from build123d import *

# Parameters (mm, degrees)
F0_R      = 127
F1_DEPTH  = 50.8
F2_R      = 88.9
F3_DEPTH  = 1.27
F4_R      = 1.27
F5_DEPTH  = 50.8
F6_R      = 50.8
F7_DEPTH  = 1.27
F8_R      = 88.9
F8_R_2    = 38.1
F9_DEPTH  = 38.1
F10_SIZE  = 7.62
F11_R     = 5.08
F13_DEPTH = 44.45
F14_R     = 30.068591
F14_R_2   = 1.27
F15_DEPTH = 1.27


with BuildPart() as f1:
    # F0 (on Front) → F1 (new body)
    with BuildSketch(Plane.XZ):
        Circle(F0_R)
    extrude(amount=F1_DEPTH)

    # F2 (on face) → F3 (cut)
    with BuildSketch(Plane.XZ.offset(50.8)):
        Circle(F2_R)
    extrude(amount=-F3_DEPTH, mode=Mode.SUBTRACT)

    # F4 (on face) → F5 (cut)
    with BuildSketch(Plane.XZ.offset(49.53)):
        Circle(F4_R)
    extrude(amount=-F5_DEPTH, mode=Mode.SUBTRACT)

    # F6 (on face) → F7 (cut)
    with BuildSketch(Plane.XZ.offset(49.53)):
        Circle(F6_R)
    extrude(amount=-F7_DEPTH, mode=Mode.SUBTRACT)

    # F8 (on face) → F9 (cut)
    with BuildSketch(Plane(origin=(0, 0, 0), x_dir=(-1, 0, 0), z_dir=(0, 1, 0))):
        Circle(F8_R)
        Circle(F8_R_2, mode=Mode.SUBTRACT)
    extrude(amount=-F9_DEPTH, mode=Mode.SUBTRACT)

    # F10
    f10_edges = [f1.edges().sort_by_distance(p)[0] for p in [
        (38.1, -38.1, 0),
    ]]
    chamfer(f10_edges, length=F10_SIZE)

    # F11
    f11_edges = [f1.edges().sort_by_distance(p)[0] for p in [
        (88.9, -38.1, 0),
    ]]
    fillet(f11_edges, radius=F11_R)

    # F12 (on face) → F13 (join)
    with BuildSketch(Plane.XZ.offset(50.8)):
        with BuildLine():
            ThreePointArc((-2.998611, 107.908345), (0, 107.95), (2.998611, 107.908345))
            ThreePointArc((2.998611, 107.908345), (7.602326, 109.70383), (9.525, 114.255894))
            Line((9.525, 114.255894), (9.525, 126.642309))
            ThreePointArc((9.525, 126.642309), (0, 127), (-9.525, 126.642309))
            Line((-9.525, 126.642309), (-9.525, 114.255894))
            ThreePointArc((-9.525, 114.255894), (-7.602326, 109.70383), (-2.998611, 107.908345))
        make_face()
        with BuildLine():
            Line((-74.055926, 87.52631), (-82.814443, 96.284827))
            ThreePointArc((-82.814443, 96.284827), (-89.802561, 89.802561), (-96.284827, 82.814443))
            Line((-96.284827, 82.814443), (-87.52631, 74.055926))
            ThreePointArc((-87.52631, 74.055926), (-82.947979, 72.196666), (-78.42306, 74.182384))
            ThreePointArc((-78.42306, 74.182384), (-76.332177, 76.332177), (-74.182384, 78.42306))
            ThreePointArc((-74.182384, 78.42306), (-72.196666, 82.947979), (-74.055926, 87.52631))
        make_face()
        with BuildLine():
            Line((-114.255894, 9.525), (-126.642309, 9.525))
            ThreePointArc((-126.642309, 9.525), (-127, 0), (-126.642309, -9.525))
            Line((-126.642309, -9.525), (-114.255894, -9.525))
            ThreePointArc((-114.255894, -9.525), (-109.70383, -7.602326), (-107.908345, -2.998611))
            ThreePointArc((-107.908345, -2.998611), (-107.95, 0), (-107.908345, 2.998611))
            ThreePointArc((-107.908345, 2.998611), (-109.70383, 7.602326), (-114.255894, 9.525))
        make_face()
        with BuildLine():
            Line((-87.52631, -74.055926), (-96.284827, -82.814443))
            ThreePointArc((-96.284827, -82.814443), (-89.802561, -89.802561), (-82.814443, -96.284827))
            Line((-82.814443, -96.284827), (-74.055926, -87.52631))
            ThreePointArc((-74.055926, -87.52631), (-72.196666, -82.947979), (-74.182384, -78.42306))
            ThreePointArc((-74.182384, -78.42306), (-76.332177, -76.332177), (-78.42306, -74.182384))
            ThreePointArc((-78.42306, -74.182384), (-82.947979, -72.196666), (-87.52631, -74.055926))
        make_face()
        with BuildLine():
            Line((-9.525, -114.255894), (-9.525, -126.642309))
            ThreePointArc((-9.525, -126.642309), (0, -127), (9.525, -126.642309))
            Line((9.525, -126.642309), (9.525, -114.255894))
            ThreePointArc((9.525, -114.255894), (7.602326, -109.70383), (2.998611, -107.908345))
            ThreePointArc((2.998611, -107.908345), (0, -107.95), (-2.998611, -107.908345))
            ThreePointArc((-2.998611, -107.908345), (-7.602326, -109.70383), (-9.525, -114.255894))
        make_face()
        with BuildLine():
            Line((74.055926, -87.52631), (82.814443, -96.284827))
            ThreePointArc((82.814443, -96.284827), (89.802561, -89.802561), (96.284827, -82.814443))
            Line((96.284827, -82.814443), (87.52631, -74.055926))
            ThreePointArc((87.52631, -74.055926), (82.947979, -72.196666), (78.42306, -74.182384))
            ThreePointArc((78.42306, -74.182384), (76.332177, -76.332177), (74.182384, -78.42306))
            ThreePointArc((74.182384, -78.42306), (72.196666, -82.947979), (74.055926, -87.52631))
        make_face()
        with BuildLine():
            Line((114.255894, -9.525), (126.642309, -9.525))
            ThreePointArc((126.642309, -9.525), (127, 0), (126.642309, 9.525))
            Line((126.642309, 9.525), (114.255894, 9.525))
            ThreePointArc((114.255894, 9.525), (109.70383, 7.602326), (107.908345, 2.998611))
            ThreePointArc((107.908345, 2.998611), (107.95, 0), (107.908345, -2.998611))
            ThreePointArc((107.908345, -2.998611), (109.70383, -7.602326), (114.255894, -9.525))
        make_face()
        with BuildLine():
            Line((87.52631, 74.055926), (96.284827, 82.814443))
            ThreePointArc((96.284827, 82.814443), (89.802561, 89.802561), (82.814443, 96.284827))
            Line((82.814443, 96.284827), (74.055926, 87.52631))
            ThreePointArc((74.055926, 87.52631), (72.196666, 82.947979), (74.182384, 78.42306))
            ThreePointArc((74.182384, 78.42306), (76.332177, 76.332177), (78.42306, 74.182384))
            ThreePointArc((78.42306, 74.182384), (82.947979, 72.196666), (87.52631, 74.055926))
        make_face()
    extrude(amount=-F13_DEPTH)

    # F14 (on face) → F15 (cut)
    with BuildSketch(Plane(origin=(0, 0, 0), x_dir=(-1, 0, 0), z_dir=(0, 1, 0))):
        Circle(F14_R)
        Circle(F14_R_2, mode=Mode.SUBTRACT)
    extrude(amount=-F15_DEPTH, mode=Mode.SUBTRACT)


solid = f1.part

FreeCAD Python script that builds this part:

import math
import FreeCAD as App
import Part
import Sketcher
Q = App.Units.Quantity


def edges_at(feature, points):
    """Names of the edges that pass closest to the given points."""
    edges = feature.Shape.Edges
    near = lambda p: min(range(len(edges)), key=lambda i: edges[i].distToShape(Part.Vertex(*p))[0])
    return sorted({f"Edge{near(p) + 1}" for p in points})

doc = App.newDocument("Part")
body = doc.addObject("PartDesign::Body", "Body")

# Sketch on XZ plane
sketch1 = body.newObject("Sketcher::SketchObject", "Sketch")
sketch1.AttachmentSupport = (doc.getObject("XZ_Plane"), [""])
sketch1.MapMode = "FlatFace"
sketch1.addGeometry(Part.Circle(App.Vector(0, 0, 0), App.Vector(0, 0, 1), 127), False)
sketch1.addConstraint(Sketcher.Constraint("Coincident", 0, 3, -1, 1))
sketch1.addConstraint(Sketcher.Constraint("Diameter", 0, Q("10 in")))
pad1 = body.newObject("PartDesign::Pad", "Pad")
pad1.Profile = sketch1
pad1.Length = Q("2 in")

# Sketch on XZ plane
sketch2 = body.newObject("Sketcher::SketchObject", "Sketch001")
sketch2.AttachmentSupport = (doc.getObject("XZ_Plane"), [""])
sketch2.MapMode = "FlatFace"
sketch2.AttachmentOffset = App.Placement(App.Vector(0, 0, 2 * 25.4), App.Rotation())
sketch2.addGeometry(Part.Circle(App.Vector(0, 0, 0), App.Vector(0, 0, 1), 89), False)
sketch2.addConstraint(Sketcher.Constraint("Coincident", 0, 3, -1, 1))
sketch2.addConstraint(Sketcher.Constraint("Diameter", 0, Q("7 in")))
pocket1 = body.newObject("PartDesign::Pocket", "Pocket")
pocket1.Profile = sketch2
pocket1.Length = Q("0.05 in")

# Sketch on XZ plane
sketch3 = body.newObject("Sketcher::SketchObject", "Sketch002")
sketch3.AttachmentSupport = (doc.getObject("XZ_Plane"), [""])
sketch3.MapMode = "FlatFace"
sketch3.AttachmentOffset = App.Placement(App.Vector(0, 0, 1.95 * 25.4), App.Rotation())
sketch3.addGeometry(Part.Circle(App.Vector(0, 0, 0), App.Vector(0, 0, 1), 1.3), False)
sketch3.addConstraint(Sketcher.Constraint("Coincident", 0, 3, -1, 1))
sketch3.addConstraint(Sketcher.Constraint("Diameter", 0, Q("0.1 in")))
pocket2 = body.newObject("PartDesign::Pocket", "Pocket001")
pocket2.Profile = sketch3
pocket2.Length = Q("2 in")

# Sketch on XZ plane
sketch4 = body.newObject("Sketcher::SketchObject", "Sketch003")
sketch4.AttachmentSupport = (doc.getObject("XZ_Plane"), [""])
sketch4.MapMode = "FlatFace"
sketch4.AttachmentOffset = App.Placement(App.Vector(0, 0, 1.95 * 25.4), App.Rotation())
sketch4.addGeometry(Part.Circle(App.Vector(0, 0, 0), App.Vector(0, 0, 1), 51), False)
sketch4.addConstraint(Sketcher.Constraint("Coincident", 0, 3, -1, 1))
sketch4.addConstraint(Sketcher.Constraint("Diameter", 0, Q("4 in")))
pocket3 = body.newObject("PartDesign::Pocket", "Pocket002")
pocket3.Profile = sketch4
pocket3.Length = Q("0.05 in")

# Sketch on XZ plane
sketch5 = body.newObject("Sketcher::SketchObject", "Sketch004")
sketch5.AttachmentSupport = (doc.getObject("XZ_Plane"), [""])
sketch5.MapMode = "FlatFace"
sketch5.addGeometry(Part.Circle(App.Vector(0, 0, 0), App.Vector(0, 0, 1), 89), False)
sketch5.addGeometry(Part.Circle(App.Vector(0, 0, 0), App.Vector(0, 0, 1), 38), False)
sketch5.addConstraint(Sketcher.Constraint("Coincident", 0, 3, -1, 1))
sketch5.addConstraint(Sketcher.Constraint("Coincident", 1, 3, -1, 1))
sketch5.addConstraint(Sketcher.Constraint("Diameter", 0, Q("7 in")))
sketch5.addConstraint(Sketcher.Constraint("Diameter", 1, Q("3 in")))
pocket4 = body.newObject("PartDesign::Pocket", "Pocket003")
pocket4.Profile = sketch5
pocket4.Length = Q("1.5 in")
pocket4.Reversed = True
doc.recompute()

chamfer = body.newObject("PartDesign::Chamfer", "Chamfer")
chamfer.Base = (pocket4, edges_at(pocket4, [(38.1, -38.1, 0)]))
chamfer.Size = Q("0.3 in")
doc.recompute()

fillet = body.newObject("PartDesign::Fillet", "Fillet")
fillet.Base = (chamfer, edges_at(chamfer, [(88.9, -38.1, 0)]))
fillet.Radius = Q("0.2 in")

# Sketch on XZ plane
sketch6 = body.newObject("Sketcher::SketchObject", "Sketch005")
sketch6.AttachmentSupport = (doc.getObject("XZ_Plane"), [""])
sketch6.MapMode = "FlatFace"
sketch6.AttachmentOffset = App.Placement(App.Vector(0, 0, 2 * 25.4), App.Rotation())
sketch6.addGeometry(Part.ArcOfCircle(Part.Circle(App.Vector(0, 0, 0), App.Vector(0, 0, 1), 108), math.radians(88.41), math.radians(91.59)), False)
sketch6.addGeometry(Part.ArcOfCircle(Part.Circle(App.Vector(3, 114, 0), App.Vector(0, 0, 1), 6), math.radians(-92), math.radians(0)), False)
sketch6.addGeometry(Part.LineSegment(App.Vector(10, 114, 0), App.Vector(10, 127, 0)), False)
sketch6.addGeometry(Part.ArcOfCircle(Part.Circle(App.Vector(0, 0, 0), App.Vector(0, 0, 1), 127), math.radians(85.7), math.radians(94.3)), False)
sketch6.addGeometry(Part.LineSegment(App.Vector(-10, 127, 0), App.Vector(-10, 114, 0)), False)
sketch6.addGeometry(Part.ArcOfCircle(Part.Circle(App.Vector(-3, 114, 0), App.Vector(0, 0, 1), 6), math.radians(180), math.radians(272)), False)
sketch6.addGeometry(Part.LineSegment(App.Vector(-74, 88, 0), App.Vector(-83, 96, 0)), False)
sketch6.addGeometry(Part.ArcOfCircle(Part.Circle(App.Vector(0, 0, 0), App.Vector(0, 0, 1), 127), math.radians(130.7), math.radians(139.3)), False)
sketch6.addGeometry(Part.LineSegment(App.Vector(-96, 83, 0), App.Vector(-88, 74, 0)), False)
sketch6.addGeometry(Part.ArcOfCircle(Part.Circle(App.Vector(-83, 79, 0), App.Vector(0, 0, 1), 6), math.radians(-135), math.radians(-43)), False)
sketch6.addGeometry(Part.ArcOfCircle(Part.Circle(App.Vector(0, 0, 0), App.Vector(0, 0, 1), 108), math.radians(133.41), math.radians(136.59)), False)
sketch6.addGeometry(Part.ArcOfCircle(Part.Circle(App.Vector(-79, 83, 0), App.Vector(0, 0, 1), 6), math.radians(-47), math.radians(45)), False)
sketch6.addGeometry(Part.LineSegment(App.Vector(-114, 10, 0), App.Vector(-127, 10, 0)), False)
sketch6.addGeometry(Part.ArcOfCircle(Part.Circle(App.Vector(0, 0, 0), App.Vector(0, 0, 1), 127), math.radians(175.7), math.radians(184.3)), False)
sketch6.addGeometry(Part.LineSegment(App.Vector(-127, -10, 0), App.Vector(-114, -10, 0)), False)
sketch6.addGeometry(Part.ArcOfCircle(Part.Circle(App.Vector(-114, -3, 0), App.Vector(0, 0, 1), 6), math.radians(-90), math.radians(2)), False)
sketch6.addGeometry(Part.ArcOfCircle(Part.Circle(App.Vector(0, 0, 0), App.Vector(0, 0, 1), 108), math.radians(178.41), math.radians(181.59)), False)
sketch6.addGeometry(Part.ArcOfCircle(Part.Circle(App.Vector(-114, 3, 0), App.Vector(0, 0, 1), 6), math.radians(-2), math.radians(90)), False)
sketch6.addGeometry(Part.LineSegment(App.Vector(-88, -74, 0), App.Vector(-96, -83, 0)), False)
sketch6.addGeometry(Part.ArcOfCircle(Part.Circle(App.Vector(0, 0, 0), App.Vector(0, 0, 1), 127), math.radians(-139.3), math.radians(-130.7)), False)
sketch6.addGeometry(Part.LineSegment(App.Vector(-83, -96, 0), App.Vector(-74, -88, 0)), False)
sketch6.addGeometry(Part.ArcOfCircle(Part.Circle(App.Vector(-79, -83, 0), App.Vector(0, 0, 1), 6), math.radians(-45), math.radians(47)), False)
sketch6.addGeometry(Part.ArcOfCircle(Part.Circle(App.Vector(0, 0, 0), App.Vector(0, 0, 1), 108), math.radians(-136.59), math.radians(-133.41)), False)
sketch6.addGeometry(Part.ArcOfCircle(Part.Circle(App.Vector(-83, -79, 0), App.Vector(0, 0, 1), 6), math.radians(43), math.radians(135)), False)
sketch6.addGeometry(Part.LineSegment(App.Vector(-10, -114, 0), App.Vector(-10, -127, 0)), False)
sketch6.addGeometry(Part.ArcOfCircle(Part.Circle(App.Vector(0, 0, 0), App.Vector(0, 0, 1), 127), math.radians(-94.3), math.radians(-85.7)), False)
sketch6.addGeometry(Part.LineSegment(App.Vector(10, -127, 0), App.Vector(10, -114, 0)), False)
sketch6.addGeometry(Part.ArcOfCircle(Part.Circle(App.Vector(3, -114, 0), App.Vector(0, 0, 1), 6), math.radians(0), math.radians(92)), False)
sketch6.addGeometry(Part.ArcOfCircle(Part.Circle(App.Vector(0, 0, 0), App.Vector(0, 0, 1), 108), math.radians(-91.59), math.radians(-88.41)), False)
sketch6.addGeometry(Part.ArcOfCircle(Part.Circle(App.Vector(-3, -114, 0), App.Vector(0, 0, 1), 6), math.radians(88), math.radians(180)), False)
sketch6.addGeometry(Part.LineSegment(App.Vector(74, -88, 0), App.Vector(83, -96, 0)), False)
sketch6.addGeometry(Part.ArcOfCircle(Part.Circle(App.Vector(0, 0, 0), App.Vector(0, 0, 1), 127), math.radians(-49.3), math.radians(-40.7)), False)
sketch6.addGeometry(Part.LineSegment(App.Vector(96, -83, 0), App.Vector(88, -74, 0)), False)
sketch6.addGeometry(Part.ArcOfCircle(Part.Circle(App.Vector(83, -79, 0), App.Vector(0, 0, 1), 6), math.radians(45), math.radians(137)), False)
sketch6.addGeometry(Part.ArcOfCircle(Part.Circle(App.Vector(0, 0, 0), App.Vector(0, 0, 1), 108), math.radians(-46.59), math.radians(-43.41)), False)
sketch6.addGeometry(Part.ArcOfCircle(Part.Circle(App.Vector(79, -83, 0), App.Vector(0, 0, 1), 6), math.radians(133), math.radians(225)), False)
sketch6.addGeometry(Part.LineSegment(App.Vector(114, -10, 0), App.Vector(127, -10, 0)), False)
sketch6.addGeometry(Part.ArcOfCircle(Part.Circle(App.Vector(0, 0, 0), App.Vector(0, 0, 1), 127), math.radians(-4.3), math.radians(4.3)), False)
sketch6.addGeometry(Part.LineSegment(App.Vector(127, 10, 0), App.Vector(114, 10, 0)), False)
sketch6.addGeometry(Part.ArcOfCircle(Part.Circle(App.Vector(114, 3, 0), App.Vector(0, 0, 1), 6), math.radians(90), math.radians(182)), False)
sketch6.addGeometry(Part.ArcOfCircle(Part.Circle(App.Vector(0, 0, 0), App.Vector(0, 0, 1), 108), math.radians(-1.59), math.radians(1.59)), False)
sketch6.addGeometry(Part.ArcOfCircle(Part.Circle(App.Vector(114, -3, 0), App.Vector(0, 0, 1), 6), math.radians(178), math.radians(270)), False)
sketch6.addGeometry(Part.LineSegment(App.Vector(88, 74, 0), App.Vector(96, 83, 0)), False)
sketch6.addGeometry(Part.ArcOfCircle(Part.Circle(App.Vector(0, 0, 0), App.Vector(0, 0, 1), 127), math.radians(40.7), math.radians(49.3)), False)
sketch6.addGeometry(Part.LineSegment(App.Vector(83, 96, 0), App.Vector(74, 88, 0)), False)
sketch6.addGeometry(Part.ArcOfCircle(Part.Circle(App.Vector(79, 83, 0), App.Vector(0, 0, 1), 6), math.radians(135), math.radians(227)), False)
sketch6.addGeometry(Part.ArcOfCircle(Part.Circle(App.Vector(0, 0, 0), App.Vector(0, 0, 1), 108), math.radians(43.41), math.radians(46.59)), False)
sketch6.addGeometry(Part.ArcOfCircle(Part.Circle(App.Vector(83, 79, 0), App.Vector(0, 0, 1), 6), math.radians(-137), math.radians(-45)), False)
sketch6.addConstraint(Sketcher.Constraint("Tangent", 0, 1, 1, 1))
sketch6.addConstraint(Sketcher.Constraint("Tangent", 1, 2, 2, 1))
sketch6.addConstraint(Sketcher.Constraint("Coincident", 2, 2, 3, 1))
sketch6.addConstraint(Sketcher.Constraint("Coincident", 3, 2, 4, 1))
sketch6.addConstraint(Sketcher.Constraint("Tangent", 4, 2, 5, 1))
sketch6.addConstraint(Sketcher.Constraint("Tangent", 5, 2, 0, 2))
sketch6.addConstraint(Sketcher.Constraint("Coincident", 6, 2, 7, 1))
sketch6.addConstraint(Sketcher.Constraint("Coincident", 7, 2, 8, 1))
sketch6.addConstraint(Sketcher.Constraint("Tangent", 8, 2, 9, 1))
sketch6.addConstraint(Sketcher.Constraint("Tangent", 9, 2, 10, 2))
sketch6.addConstraint(Sketcher.Constraint("Tangent", 10, 1, 11, 1))
sketch6.addConstraint(Sketcher.Constraint("Tangent", 11, 2, 6, 1))
sketch6.addConstraint(Sketcher.Constraint("Coincident", 12, 2, 13, 1))
sketch6.addConstraint(Sketcher.Constraint("Coincident", 13, 2, 14, 1))
sketch6.addConstraint(Sketcher.Constraint("Tangent", 14, 2, 15, 1))
sketch6.addConstraint(Sketcher.Constraint("Tangent", 15, 2, 16, 2))
sketch6.addConstraint(Sketcher.Constraint("Tangent", 16, 1, 17, 1))
sketch6.addConstraint(Sketcher.Constraint("Tangent", 17, 2, 12, 1))
sketch6.addConstraint(Sketcher.Constraint("Coincident", 18, 2, 19, 1))
sketch6.addConstraint(Sketcher.Constraint("Coincident", 19, 2, 20, 1))
sketch6.addConstraint(Sketcher.Constraint("Tangent", 20, 2, 21, 1))
sketch6.addConstraint(Sketcher.Constraint("Tangent", 21, 2, 22, 2))
sketch6.addConstraint(Sketcher.Constraint("Tangent", 22, 1, 23, 1))
sketch6.addConstraint(Sketcher.Constraint("Tangent", 23, 2, 18, 1))
sketch6.addConstraint(Sketcher.Constraint("Coincident", 24, 2, 25, 1))
sketch6.addConstraint(Sketcher.Constraint("Coincident", 25, 2, 26, 1))
sketch6.addConstraint(Sketcher.Constraint("Tangent", 26, 2, 27, 1))
sketch6.addConstraint(Sketcher.Constraint("Tangent", 27, 2, 28, 2))
sketch6.addConstraint(Sketcher.Constraint("Tangent", 28, 1, 29, 1))
sketch6.addConstraint(Sketcher.Constraint("Tangent", 29, 2, 24, 1))
sketch6.addConstraint(Sketcher.Constraint("Coincident", 30, 2, 31, 1))
sketch6.addConstraint(Sketcher.Constraint("Coincident", 31, 2, 32, 1))
sketch6.addConstraint(Sketcher.Constraint("Tangent", 32, 2, 33, 1))
sketch6.addConstraint(Sketcher.Constraint("Tangent", 33, 2, 34, 2))
sketch6.addConstraint(Sketcher.Constraint("Tangent", 34, 1, 35, 1))
sketch6.addConstraint(Sketcher.Constraint("Tangent", 35, 2, 30, 1))
sketch6.addConstraint(Sketcher.Constraint("Coincident", 36, 2, 37, 1))
sketch6.addConstraint(Sketcher.Constraint("Coincident", 37, 2, 38, 1))
sketch6.addConstraint(Sketcher.Constraint("Tangent", 38, 2, 39, 1))
sketch6.addConstraint(Sketcher.Constraint("Tangent", 39, 2, 40, 2))
sketch6.addConstraint(Sketcher.Constraint("Tangent", 40, 1, 41, 1))
sketch6.addConstraint(Sketcher.Constraint("Tangent", 41, 2, 36, 1))
sketch6.addConstraint(Sketcher.Constraint("Coincident", 42, 2, 43, 1))
sketch6.addConstraint(Sketcher.Constraint("Coincident", 43, 2, 44, 1))
sketch6.addConstraint(Sketcher.Constraint("Tangent", 44, 2, 45, 1))
sketch6.addConstraint(Sketcher.Constraint("Tangent", 45, 2, 46, 2))
sketch6.addConstraint(Sketcher.Constraint("Tangent", 46, 1, 47, 1))
sketch6.addConstraint(Sketcher.Constraint("Tangent", 47, 2, 42, 1))
sketch6.addConstraint(Sketcher.Constraint("Vertical", 2))
sketch6.addConstraint(Sketcher.Constraint("Vertical", 4))
sketch6.addConstraint(Sketcher.Constraint("Horizontal", 12))
sketch6.addConstraint(Sketcher.Constraint("Horizontal", 14))
sketch6.addConstraint(Sketcher.Constraint("Vertical", 24))
sketch6.addConstraint(Sketcher.Constraint("Vertical", 26))
sketch6.addConstraint(Sketcher.Constraint("Horizontal", 36))
sketch6.addConstraint(Sketcher.Constraint("Horizontal", 38))
sketch6.addConstraint(Sketcher.Constraint("Equal", 1, 5))
sketch6.addConstraint(Sketcher.Constraint("Equal", 5, 9))
sketch6.addConstraint(Sketcher.Constraint("Equal", 9, 11))
sketch6.addConstraint(Sketcher.Constraint("Equal", 3, 13))
sketch6.addConstraint(Sketcher.Constraint("Equal", 11, 15))
sketch6.addConstraint(Sketcher.Constraint("Equal", 0, 16))
sketch6.addConstraint(Sketcher.Constraint("Equal", 15, 17))
sketch6.addConstraint(Sketcher.Constraint("Equal", 7, 19))
sketch6.addConstraint(Sketcher.Constraint("Equal", 17, 21))
sketch6.addConstraint(Sketcher.Constraint("Equal", 10, 22))
sketch6.addConstraint(Sketcher.Constraint("Equal", 21, 23))
sketch6.addConstraint(Sketcher.Constraint("Equal", 13, 25))
sketch6.addConstraint(Sketcher.Constraint("Equal", 23, 27))
sketch6.addConstraint(Sketcher.Constraint("Equal", 16, 28))
sketch6.addConstraint(Sketcher.Constraint("Equal", 27, 29))
sketch6.addConstraint(Sketcher.Constraint("Equal", 19, 31))
sketch6.addConstraint(Sketcher.Constraint("Equal", 29, 33))
sketch6.addConstraint(Sketcher.Constraint("Equal", 22, 34))
sketch6.addConstraint(Sketcher.Constraint("Equal", 33, 35))
sketch6.addConstraint(Sketcher.Constraint("Equal", 25, 37))
sketch6.addConstraint(Sketcher.Constraint("Equal", 35, 39))
sketch6.addConstraint(Sketcher.Constraint("Equal", 28, 40))
sketch6.addConstraint(Sketcher.Constraint("Equal", 39, 41))
sketch6.addConstraint(Sketcher.Constraint("Equal", 31, 43))
sketch6.addConstraint(Sketcher.Constraint("Equal", 41, 45))
sketch6.addConstraint(Sketcher.Constraint("Equal", 34, 46))
sketch6.addConstraint(Sketcher.Constraint("Equal", 45, 47))
sketch6.addConstraint(Sketcher.Constraint("Symmetric", 3, 3, 25, 3, -1, 1))
sketch6.addConstraint(Sketcher.Constraint("Symmetric", 5, 3, 27, 3, -1, 1))
sketch6.addConstraint(Sketcher.Constraint("Symmetric", 1, 3, 29, 3, -1, 1))
sketch6.addConstraint(Sketcher.Constraint("Symmetric", 7, 3, 31, 3, -1, 1))
sketch6.addConstraint(Sketcher.Constraint("Symmetric", 9, 3, 33, 3, -1, 1))
sketch6.addConstraint(Sketcher.Constraint("Symmetric", 11, 3, 35, 3, -1, 1))
sketch6.addConstraint(Sketcher.Constraint("Symmetric", 13, 3, 37, 3, -1, 1))
sketch6.addConstraint(Sketcher.Constraint("Symmetric", 15, 3, 39, 3, -1, 1))
sketch6.addConstraint(Sketcher.Constraint("Symmetric", 17, 3, 41, 3, -1, 1))
sketch6.addConstraint(Sketcher.Constraint("Symmetric", 19, 3, 43, 3, -1, 1))
sketch6.addConstraint(Sketcher.Constraint("Symmetric", 21, 3, 45, 3, -1, 1))
sketch6.addConstraint(Sketcher.Constraint("Symmetric", 23, 3, 47, 3, -1, 1))
sketch6.addConstraint(Sketcher.Constraint("Symmetric", 1, 3, 5, 3, -2))
sketch6.addConstraint(Sketcher.Constraint("Symmetric", 19, 3, 31, 3, -2))
sketch6.addConstraint(Sketcher.Constraint("Symmetric", 23, 3, 33, 3, -2))
sketch6.addConstraint(Sketcher.Constraint("Symmetric", 21, 3, 35, 3, -2))
sketch6.addConstraint(Sketcher.Constraint("Symmetric", 17, 3, 39, 3, -2))
sketch6.addConstraint(Sketcher.Constraint("PointOnObject", 3, 3, -2))
sketch6.addConstraint(Sketcher.Constraint("PointOnObject", 13, 3, -1))
sketch6.addConstraint(Sketcher.Constraint("Parallel", 6, 8))
sketch6.addConstraint(Sketcher.Constraint("Perpendicular", 8, 18))
sketch6.addConstraint(Sketcher.Constraint("Parallel", 18, 20))
sketch6.addConstraint(Sketcher.Constraint("Perpendicular", 20, 30))
sketch6.addConstraint(Sketcher.Constraint("Parallel", 30, 32))
sketch6.addConstraint(Sketcher.Constraint("Perpendicular", 32, 42))
sketch6.addConstraint(Sketcher.Constraint("Parallel", 42, 44))
sketch6.addConstraint(Sketcher.Constraint("Horizontal", 19, 2, 30, 2))
sketch6.addConstraint(Sketcher.Constraint("Equal", 38, 2))
sketch6.addConstraint(Sketcher.Constraint("Equal", 6, 8))
sketch6.addConstraint(Sketcher.Constraint("Radius", 1, Q("0.2499999 in")))
sketch6.addConstraint(Sketcher.Constraint("DistanceX", -1, 1, 1, 3, Q("0.1250001 in")))
sketch6.addConstraint(Sketcher.Constraint("DistanceY", 15, 3, -1, 1, Q("0.1250001 in")))
sketch6.addConstraint(Sketcher.Constraint("Radius", 0, 107.951063))
sketch6.addConstraint(Sketcher.Constraint("Radius", 3, 127.000075))
sketch6.addConstraint(Sketcher.Constraint("Radius", 7, 126.999938))
sketch6.addConstraint(Sketcher.Constraint("Radius", 10, 107.949335))
sketch6.addConstraint(Sketcher.Constraint("DistanceX", 12, 2, 12, 1, 12.386415))
sketch6.addConstraint(Sketcher.Constraint("DistanceX", 9, 3, -1, 1, 83.036181))
sketch6.addConstraint(Sketcher.Constraint("DistanceX", 10, 3, -1, 1, 0.00047))
sketch6.addConstraint(Sketcher.Constraint("DistanceY", -1, 1, 10, 3, 0.00047))
sketch6.addConstraint(Sketcher.Constraint("DistanceY", -1, 1, 11, 3, 83.036181))
sketch6.addConstraint(Sketcher.Constraint("DistanceY", -1, 1, 2, 2, 126.642309))
sketch6.addConstraint(Sketcher.Constraint("DistanceX", 12, 2, -1, 1, 126.642309))
sketch6.addConstraint(Sketcher.Constraint("Distance", 6, 12.386414))
pad2 = body.newObject("PartDesign::Pad", "Pad001")
pad2.Profile = sketch6
pad2.Length = Q("1.75 in")
pad2.Reversed = True

# Sketch on XZ plane
sketch7 = body.newObject("Sketcher::SketchObject", "Sketch006")
sketch7.AttachmentSupport = (doc.getObject("XZ_Plane"), [""])
sketch7.MapMode = "FlatFace"
sketch7.addGeometry(Part.Circle(App.Vector(0, 0, 0), App.Vector(0, 0, 1), 30.1), False)
sketch7.addGeometry(Part.Circle(App.Vector(0, 0, 0), App.Vector(0, 0, 1), 1.3), False)
sketch7.addConstraint(Sketcher.Constraint("Coincident", 0, 3, -1, 1))
sketch7.addConstraint(Sketcher.Constraint("Coincident", 1, 3, -1, 1))
sketch7.addConstraint(Sketcher.Constraint("Diameter", 1, Q("0.1 in")))
sketch7.addConstraint(Sketcher.Constraint("Diameter", 0, 60.137182))
pocket5 = body.newObject("PartDesign::Pocket", "Pocket004")
pocket5.Profile = sketch7
pocket5.Length = Q("0.05 in")
pocket5.Reversed = True

doc.recompute()
